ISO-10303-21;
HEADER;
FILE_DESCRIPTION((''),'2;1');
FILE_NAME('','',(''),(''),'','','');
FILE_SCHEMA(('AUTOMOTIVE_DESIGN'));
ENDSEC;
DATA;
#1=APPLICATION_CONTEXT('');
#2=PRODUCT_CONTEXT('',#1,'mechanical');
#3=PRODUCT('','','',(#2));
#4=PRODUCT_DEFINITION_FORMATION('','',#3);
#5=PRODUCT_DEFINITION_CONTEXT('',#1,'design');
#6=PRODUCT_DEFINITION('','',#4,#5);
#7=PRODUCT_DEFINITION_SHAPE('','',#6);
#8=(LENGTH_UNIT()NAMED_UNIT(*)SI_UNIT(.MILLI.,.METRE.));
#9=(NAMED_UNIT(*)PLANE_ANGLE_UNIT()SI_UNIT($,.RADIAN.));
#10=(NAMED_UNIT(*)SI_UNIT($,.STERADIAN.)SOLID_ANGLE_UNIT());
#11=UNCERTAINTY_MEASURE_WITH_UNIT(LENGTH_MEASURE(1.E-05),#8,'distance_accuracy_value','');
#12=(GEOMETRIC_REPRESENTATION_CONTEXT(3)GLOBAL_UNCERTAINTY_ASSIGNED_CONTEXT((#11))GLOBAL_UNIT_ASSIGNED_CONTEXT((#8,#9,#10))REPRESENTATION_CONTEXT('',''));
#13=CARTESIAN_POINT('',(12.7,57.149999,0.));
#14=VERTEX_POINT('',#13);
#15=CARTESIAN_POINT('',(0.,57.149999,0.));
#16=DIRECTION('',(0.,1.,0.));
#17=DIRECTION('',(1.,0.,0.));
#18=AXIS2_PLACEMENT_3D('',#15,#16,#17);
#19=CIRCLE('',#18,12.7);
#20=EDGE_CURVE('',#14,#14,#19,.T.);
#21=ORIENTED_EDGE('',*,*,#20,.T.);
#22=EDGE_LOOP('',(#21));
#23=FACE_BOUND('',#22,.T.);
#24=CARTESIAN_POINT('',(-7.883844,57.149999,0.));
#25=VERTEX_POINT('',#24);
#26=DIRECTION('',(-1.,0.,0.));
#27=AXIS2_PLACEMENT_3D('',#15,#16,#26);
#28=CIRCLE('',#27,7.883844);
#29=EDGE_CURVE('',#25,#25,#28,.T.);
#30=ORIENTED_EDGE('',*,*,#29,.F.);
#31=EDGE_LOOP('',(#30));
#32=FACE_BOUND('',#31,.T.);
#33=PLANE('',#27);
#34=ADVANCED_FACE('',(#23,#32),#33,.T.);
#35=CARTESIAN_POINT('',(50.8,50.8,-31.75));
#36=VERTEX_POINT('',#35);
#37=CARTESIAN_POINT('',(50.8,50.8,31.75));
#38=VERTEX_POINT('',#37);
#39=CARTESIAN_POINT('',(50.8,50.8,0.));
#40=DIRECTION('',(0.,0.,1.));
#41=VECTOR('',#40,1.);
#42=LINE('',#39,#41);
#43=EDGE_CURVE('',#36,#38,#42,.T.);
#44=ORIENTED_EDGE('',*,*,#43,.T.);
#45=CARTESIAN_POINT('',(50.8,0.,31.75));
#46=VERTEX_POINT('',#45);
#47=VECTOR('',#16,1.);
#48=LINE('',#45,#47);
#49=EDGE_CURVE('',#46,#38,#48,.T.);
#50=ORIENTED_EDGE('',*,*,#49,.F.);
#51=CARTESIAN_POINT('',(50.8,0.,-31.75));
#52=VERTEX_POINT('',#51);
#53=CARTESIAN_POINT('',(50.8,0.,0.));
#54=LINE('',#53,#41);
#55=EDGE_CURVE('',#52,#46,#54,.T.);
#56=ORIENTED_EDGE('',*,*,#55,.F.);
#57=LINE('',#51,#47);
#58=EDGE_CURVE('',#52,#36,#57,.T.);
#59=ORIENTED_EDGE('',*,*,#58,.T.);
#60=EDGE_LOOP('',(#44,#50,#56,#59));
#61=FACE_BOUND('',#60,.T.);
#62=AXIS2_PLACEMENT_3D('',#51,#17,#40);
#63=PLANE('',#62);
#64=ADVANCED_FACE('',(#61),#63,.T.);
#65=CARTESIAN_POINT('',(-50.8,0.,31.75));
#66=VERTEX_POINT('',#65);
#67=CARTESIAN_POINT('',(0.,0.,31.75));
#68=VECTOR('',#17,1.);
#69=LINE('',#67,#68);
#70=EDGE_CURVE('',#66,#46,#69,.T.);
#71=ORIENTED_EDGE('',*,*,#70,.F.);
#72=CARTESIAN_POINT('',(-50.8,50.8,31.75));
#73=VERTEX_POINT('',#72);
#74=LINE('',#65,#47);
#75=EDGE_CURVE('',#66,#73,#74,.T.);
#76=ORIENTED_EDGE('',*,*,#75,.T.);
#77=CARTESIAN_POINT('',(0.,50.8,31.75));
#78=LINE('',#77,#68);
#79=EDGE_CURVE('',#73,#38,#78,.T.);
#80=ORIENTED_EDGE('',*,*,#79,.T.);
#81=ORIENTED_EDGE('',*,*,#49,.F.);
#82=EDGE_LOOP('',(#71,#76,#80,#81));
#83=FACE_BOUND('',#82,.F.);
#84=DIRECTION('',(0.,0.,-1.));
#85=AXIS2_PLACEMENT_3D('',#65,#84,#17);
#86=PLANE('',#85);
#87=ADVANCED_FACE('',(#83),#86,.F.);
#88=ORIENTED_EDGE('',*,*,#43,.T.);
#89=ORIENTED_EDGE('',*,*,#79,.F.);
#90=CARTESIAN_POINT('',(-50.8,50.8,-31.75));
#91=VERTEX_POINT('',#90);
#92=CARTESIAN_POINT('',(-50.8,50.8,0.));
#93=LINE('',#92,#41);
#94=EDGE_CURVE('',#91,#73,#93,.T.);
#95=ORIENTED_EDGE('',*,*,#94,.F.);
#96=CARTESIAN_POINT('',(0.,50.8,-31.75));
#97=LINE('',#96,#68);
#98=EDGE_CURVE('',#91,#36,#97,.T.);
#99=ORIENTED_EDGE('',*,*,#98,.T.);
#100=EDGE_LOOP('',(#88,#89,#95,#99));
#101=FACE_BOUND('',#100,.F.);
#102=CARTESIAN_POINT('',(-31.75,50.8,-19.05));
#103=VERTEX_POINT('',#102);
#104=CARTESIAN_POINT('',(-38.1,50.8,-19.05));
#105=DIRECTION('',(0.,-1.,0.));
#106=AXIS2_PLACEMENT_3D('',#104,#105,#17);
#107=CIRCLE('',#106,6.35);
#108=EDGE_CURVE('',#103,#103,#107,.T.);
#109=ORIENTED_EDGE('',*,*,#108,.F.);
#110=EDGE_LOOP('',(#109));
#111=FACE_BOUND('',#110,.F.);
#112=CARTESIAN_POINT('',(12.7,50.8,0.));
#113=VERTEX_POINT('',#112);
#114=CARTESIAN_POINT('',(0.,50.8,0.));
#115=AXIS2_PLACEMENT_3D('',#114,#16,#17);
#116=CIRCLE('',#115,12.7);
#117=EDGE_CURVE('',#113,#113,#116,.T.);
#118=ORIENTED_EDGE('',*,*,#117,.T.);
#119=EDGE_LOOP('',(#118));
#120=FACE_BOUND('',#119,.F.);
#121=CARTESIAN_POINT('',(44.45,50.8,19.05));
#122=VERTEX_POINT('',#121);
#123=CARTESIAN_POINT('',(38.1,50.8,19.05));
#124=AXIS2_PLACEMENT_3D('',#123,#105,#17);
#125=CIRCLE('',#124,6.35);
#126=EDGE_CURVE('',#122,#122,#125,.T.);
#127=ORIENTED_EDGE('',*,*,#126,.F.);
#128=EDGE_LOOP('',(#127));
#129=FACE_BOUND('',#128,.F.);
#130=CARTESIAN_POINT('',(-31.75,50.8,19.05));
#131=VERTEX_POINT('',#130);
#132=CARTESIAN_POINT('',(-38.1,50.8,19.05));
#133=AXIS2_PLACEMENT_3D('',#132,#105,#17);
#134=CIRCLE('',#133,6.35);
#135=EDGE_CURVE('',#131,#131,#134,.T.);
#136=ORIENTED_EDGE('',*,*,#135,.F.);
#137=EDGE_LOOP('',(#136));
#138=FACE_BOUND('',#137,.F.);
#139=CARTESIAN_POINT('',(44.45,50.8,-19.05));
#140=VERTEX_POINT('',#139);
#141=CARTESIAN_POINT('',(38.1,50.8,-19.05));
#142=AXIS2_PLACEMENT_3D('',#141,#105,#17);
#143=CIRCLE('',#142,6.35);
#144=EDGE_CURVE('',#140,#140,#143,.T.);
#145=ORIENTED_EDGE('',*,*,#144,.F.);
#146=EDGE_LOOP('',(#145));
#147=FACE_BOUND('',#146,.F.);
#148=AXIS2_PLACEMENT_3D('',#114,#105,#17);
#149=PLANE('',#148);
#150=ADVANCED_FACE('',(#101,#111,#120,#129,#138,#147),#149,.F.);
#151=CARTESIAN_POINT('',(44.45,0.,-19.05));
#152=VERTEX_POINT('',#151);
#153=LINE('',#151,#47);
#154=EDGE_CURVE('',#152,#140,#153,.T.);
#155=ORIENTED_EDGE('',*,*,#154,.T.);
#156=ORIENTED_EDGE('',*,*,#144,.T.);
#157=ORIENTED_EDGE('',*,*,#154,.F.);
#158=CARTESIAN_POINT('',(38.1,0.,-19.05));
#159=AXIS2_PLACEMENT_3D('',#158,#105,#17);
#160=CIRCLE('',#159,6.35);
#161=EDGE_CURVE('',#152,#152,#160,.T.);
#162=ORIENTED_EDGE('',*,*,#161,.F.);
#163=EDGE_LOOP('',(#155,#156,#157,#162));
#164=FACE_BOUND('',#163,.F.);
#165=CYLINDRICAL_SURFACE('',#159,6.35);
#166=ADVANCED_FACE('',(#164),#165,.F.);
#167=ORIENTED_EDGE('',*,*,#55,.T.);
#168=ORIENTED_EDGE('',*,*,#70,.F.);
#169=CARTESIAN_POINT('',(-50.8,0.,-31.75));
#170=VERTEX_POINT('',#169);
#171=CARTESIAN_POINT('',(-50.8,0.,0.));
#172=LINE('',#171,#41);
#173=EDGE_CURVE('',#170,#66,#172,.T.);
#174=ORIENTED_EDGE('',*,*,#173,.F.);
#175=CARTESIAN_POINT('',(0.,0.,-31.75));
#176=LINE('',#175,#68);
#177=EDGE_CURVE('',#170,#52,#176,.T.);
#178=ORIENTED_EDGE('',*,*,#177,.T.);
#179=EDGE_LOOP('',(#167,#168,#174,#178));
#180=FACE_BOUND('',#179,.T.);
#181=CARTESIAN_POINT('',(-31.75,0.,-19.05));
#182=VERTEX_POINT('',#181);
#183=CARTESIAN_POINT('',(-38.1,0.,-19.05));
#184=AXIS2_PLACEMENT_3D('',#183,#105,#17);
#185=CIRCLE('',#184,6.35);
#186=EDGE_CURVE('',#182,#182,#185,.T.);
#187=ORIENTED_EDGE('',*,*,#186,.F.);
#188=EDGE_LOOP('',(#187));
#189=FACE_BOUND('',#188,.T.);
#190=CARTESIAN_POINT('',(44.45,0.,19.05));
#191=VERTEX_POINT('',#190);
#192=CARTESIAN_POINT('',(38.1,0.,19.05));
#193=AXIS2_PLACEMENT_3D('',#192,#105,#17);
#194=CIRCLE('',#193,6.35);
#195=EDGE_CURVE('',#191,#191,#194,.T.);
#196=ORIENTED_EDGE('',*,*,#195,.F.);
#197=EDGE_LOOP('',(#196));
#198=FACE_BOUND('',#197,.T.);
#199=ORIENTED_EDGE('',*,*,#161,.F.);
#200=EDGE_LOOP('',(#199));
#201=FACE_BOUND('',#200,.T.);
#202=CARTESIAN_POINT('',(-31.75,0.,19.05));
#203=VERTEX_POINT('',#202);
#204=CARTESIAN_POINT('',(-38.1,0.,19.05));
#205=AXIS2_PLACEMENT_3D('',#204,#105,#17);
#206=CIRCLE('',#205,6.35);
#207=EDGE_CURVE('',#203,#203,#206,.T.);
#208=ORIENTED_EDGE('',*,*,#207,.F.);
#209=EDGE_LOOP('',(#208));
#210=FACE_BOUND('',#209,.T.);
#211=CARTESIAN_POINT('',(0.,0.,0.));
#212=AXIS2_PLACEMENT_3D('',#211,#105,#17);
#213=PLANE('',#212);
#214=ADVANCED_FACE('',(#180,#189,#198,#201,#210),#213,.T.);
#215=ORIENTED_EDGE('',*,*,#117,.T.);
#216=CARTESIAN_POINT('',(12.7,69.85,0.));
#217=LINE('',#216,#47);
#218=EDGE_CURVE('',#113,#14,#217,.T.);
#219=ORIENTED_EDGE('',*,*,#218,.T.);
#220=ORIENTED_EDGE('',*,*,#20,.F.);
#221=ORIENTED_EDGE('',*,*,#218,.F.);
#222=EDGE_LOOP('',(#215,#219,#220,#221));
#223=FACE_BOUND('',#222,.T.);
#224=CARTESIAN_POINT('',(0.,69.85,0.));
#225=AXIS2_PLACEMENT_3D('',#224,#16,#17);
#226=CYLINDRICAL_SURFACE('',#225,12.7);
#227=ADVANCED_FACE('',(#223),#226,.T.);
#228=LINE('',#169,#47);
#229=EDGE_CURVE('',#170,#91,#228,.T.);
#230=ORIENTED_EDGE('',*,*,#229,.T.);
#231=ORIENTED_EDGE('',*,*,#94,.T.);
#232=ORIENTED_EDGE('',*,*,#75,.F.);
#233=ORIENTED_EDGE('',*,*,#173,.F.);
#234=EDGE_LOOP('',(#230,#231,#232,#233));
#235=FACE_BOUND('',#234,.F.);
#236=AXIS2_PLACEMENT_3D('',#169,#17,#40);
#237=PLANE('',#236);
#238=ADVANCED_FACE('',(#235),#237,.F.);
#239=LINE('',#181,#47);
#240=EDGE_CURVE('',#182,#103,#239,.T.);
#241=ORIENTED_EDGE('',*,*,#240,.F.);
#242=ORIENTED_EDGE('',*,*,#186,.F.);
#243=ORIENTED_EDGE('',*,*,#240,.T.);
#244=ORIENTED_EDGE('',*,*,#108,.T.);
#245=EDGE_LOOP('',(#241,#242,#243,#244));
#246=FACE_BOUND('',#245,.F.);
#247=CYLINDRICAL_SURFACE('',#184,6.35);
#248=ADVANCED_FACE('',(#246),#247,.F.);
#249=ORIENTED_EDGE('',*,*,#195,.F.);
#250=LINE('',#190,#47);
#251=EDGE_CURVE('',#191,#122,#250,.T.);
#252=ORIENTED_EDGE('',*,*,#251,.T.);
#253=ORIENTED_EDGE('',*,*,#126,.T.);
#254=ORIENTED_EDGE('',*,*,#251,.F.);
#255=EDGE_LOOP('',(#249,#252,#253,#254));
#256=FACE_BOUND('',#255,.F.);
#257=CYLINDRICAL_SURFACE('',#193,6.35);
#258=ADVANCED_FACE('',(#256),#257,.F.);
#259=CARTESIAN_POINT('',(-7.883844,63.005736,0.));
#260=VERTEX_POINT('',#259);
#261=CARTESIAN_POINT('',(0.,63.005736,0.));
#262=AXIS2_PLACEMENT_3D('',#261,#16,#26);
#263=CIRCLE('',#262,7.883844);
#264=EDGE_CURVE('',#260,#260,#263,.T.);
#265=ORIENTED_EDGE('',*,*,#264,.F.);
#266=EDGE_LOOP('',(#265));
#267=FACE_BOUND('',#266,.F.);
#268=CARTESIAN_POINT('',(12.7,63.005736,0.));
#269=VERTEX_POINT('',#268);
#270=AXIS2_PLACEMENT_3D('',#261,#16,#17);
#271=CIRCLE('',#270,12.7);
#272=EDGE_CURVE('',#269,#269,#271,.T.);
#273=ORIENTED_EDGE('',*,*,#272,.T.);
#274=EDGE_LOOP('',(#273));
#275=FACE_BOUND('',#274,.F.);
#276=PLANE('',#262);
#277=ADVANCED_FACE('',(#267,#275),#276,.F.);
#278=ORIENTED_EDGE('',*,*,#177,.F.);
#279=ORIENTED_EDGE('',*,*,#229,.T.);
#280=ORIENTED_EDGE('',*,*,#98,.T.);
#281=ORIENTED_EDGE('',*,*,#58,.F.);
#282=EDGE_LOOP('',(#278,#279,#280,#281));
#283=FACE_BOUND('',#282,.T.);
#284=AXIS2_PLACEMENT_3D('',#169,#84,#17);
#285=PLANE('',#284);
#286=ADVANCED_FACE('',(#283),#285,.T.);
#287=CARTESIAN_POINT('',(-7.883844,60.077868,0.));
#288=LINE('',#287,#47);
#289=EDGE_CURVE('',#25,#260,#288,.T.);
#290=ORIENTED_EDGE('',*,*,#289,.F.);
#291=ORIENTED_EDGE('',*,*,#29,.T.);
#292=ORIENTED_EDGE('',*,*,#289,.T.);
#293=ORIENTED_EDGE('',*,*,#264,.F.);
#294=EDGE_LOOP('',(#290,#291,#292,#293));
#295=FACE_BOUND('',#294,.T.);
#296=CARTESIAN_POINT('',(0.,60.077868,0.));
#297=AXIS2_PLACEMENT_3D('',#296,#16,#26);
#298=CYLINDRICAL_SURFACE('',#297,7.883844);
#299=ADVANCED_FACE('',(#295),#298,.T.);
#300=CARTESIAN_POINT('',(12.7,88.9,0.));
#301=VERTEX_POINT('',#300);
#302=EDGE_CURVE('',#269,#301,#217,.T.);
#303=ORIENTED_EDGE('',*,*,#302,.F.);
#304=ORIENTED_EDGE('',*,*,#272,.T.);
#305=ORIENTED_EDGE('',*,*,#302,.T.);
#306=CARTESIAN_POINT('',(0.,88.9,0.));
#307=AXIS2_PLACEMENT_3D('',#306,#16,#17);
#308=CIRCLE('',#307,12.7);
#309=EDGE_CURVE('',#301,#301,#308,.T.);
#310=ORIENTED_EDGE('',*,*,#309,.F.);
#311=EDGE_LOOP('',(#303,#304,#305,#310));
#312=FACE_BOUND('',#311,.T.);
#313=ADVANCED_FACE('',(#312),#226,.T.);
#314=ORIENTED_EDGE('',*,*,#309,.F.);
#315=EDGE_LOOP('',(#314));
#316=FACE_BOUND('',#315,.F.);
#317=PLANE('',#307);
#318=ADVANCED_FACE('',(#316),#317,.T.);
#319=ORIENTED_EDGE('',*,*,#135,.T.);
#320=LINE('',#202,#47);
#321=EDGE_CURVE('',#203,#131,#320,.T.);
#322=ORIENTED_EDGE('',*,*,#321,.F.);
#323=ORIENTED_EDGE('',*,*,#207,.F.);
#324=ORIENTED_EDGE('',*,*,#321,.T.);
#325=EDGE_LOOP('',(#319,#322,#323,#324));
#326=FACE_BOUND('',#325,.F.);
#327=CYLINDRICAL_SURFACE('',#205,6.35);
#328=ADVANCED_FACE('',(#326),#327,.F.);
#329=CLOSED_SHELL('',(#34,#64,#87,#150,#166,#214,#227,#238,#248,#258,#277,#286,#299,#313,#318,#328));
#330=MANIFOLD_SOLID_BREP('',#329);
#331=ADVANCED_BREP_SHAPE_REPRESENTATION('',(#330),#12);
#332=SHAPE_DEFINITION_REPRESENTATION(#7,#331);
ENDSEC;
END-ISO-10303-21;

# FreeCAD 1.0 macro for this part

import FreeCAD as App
import Part
import Sketcher

V = App.Vector
Q = App.Units.Quantity

doc = App.newDocument("Part")
body = doc.addObject("PartDesign::Body", "Body")

# Sketch on XZ plane
sketch1 = body.newObject("Sketcher::SketchObject", "Sketch")
sketch1.AttachmentSupport = (doc.getObject("XZ_Plane"), [""])
sketch1.MapMode = "FlatFace"
sketch1.addGeometry([
    Part.LineSegment(V(-51, 32, 0), V(-51, -32, 0)),
    Part.LineSegment(V(-51, -32, 0), V(51, -32, 0)),
    Part.LineSegment(V(51, -32, 0), V(51, 32, 0)),
    Part.LineSegment(V(51, 32, 0), V(-51, 32, 0)),
], False)
sketch1.addConstraint([
    Sketcher.Constraint("Coincident", 0, 2, 1, 1),
    Sketcher.Constraint("Coincident", 1, 2, 2, 1),
    Sketcher.Constraint("Coincident", 2, 2, 3, 1),
    Sketcher.Constraint("Coincident", 3, 2, 0, 1),
    Sketcher.Constraint("Vertical", 0),
    Sketcher.Constraint("Horizontal", 1),
    Sketcher.Constraint("Vertical", 2),
    Sketcher.Constraint("Horizontal", 3),
    Sketcher.Constraint("Symmetric", 0, 2, 2, 2, -1, 1),
    Sketcher.Constraint("DistanceX", 1, 1, 1, 2, Q("4 in")),
    Sketcher.Constraint("DistanceY", 0, 2, 0, 1, Q("2.5 in")),
])
pad1 = body.newObject("PartDesign::Pad", "Pad")
pad1.Profile = sketch1
pad1.Length = Q("2 in")
pad1.Reversed = True

# Sketch on XZ plane
sketch2 = body.newObject("Sketcher::SketchObject", "Sketch001")
sketch2.AttachmentSupport = (doc.getObject("XZ_Plane"), [""])
sketch2.MapMode = "FlatFace"
sketch2.addGeometry([
    Part.Circle(V(38, -19, 0), V(0, 0, 1), 6),
    Part.Circle(V(38, 19, 0), V(0, 0, 1), 6),
    Part.Circle(V(-38, 19, 0), V(0, 0, 1), 6),
    Part.Circle(V(-38, -19, 0), V(0, 0, 1), 6),
], False)
sketch2.addConstraint([
    Sketcher.Constraint("Equal", 0, 1),
    Sketcher.Constraint("Equal", 1, 2),
    Sketcher.Constraint("Equal", 2, 3),
    Sketcher.Constraint("Symmetric", 0, 3, 2, 3, -1, 1),
    Sketcher.Constraint("Symmetric", 1, 3, 3, 3, -1, 1),
    Sketcher.Constraint("Symmetric", 1, 3, 2, 3, -2),
    Sketcher.Constraint("Diameter", 0, Q("0.5 in")),
    Sketcher.Constraint("DistanceX", 2, 3, 1, 3, Q("3 in")),
    Sketcher.Constraint("DistanceY", 0, 3, 1, 3, Q("1.5 in")),
])
pocket1 = body.newObject("PartDesign::Pocket", "Pocket")
pocket1.Profile = sketch2
pocket1.Type = "ThroughAll"

# Sketch on XY plane
sketch3 = body.newObject("Sketcher::SketchObject", "Sketch002")
sketch3.AttachmentSupport = (doc.getObject("XY_Plane"), [""])
sketch3.MapMode = "FlatFace"
sketch3.addGeometry([
    Part.LineSegment(V(0, 89, 0), V(0, 51, 0)),
    Part.LineSegment(V(0, 51, 0), V(13, 51, 0)),
    Part.LineSegment(V(13, 51, 0), V(13, 89, 0)),
    Part.LineSegment(V(13, 89, 0), V(0, 89, 0)),
], False)
sketch3.addConstraint([
    Sketcher.Constraint("Coincident", 0, 2, 1, 1),
    Sketcher.Constraint("Coincident", 1, 2, 2, 1),
    Sketcher.Constraint("Coincident", 2, 2, 3, 1),
    Sketcher.Constraint("Coincident", 3, 2, 0, 1),
    Sketcher.Constraint("Vertical", 0),
    Sketcher.Constraint("Horizontal", 1),
    Sketcher.Constraint("Vertical", 2),
    Sketcher.Constraint("Horizontal", 3),
    Sketcher.Constraint("PointOnObject", 0, 2, -2),
    Sketcher.Constraint("DistanceX", 1, 1, 1, 2, Q("0.5 in")),
    Sketcher.Constraint("DistanceY", 0, 2, 0, 1, Q("1.5 in")),
    Sketcher.Constraint("DistanceY", -1, 1, 0, 2, Q("2 in")),
])
revolution = body.newObject("PartDesign::Revolution", "Revolution")
revolution.Profile = sketch3
revolution.ReferenceAxis = (sketch3, ["V_Axis"])
revolution.Angle = 360

# Sketch on XY plane
sketch4 = body.newObject("Sketcher::SketchObject", "Sketch003")
sketch4.AttachmentSupport = (doc.getObject("XY_Plane"), [""])
sketch4.MapMode = "FlatFace"
sketch4.addGeometry([
    Part.LineSegment(V(-21, 63, 0), V(-21, 57, 0)),
    Part.LineSegment(V(-21, 57, 0), V(-8, 57, 0)),
    Part.LineSegment(V(-8, 57, 0), V(-8, 63, 0)),
    Part.LineSegment(V(-8, 63, 0), V(-21, 63, 0)),
], False)
sketch4.addConstraint([
    Sketcher.Constraint("Coincident", 0, 2, 1, 1),
    Sketcher.Constraint("Coincident", 1, 2, 2, 1),
    Sketcher.Constraint("Coincident", 2, 2, 3, 1),
    Sketcher.Constraint("Coincident", 3, 2, 0, 1),
    Sketcher.Constraint("Vertical", 0),
    Sketcher.Constraint("Horizontal", 1),
    Sketcher.Constraint("Vertical", 2),
    Sketcher.Constraint("Horizontal", 3),
    Sketcher.Constraint("DistanceX", 1, 1, 1, 2, Q("0.5 in")),
    Sketcher.Constraint("DistanceY", -1, 1, 0, 2, Q("2.25 in")),
    Sketcher.Constraint("DistanceY", 0, 2, 0, 1, Q("5.855737 mm")),
    Sketcher.Constraint("DistanceX", 0, 2, -1, 1, Q("20.583844 mm")),
])
groove = body.newObject("PartDesign::Groove", "Groove")
groove.Profile = sketch4
groove.ReferenceAxis = (sketch4, ["V_Axis"])
groove.Angle = 360

doc.recompute()
